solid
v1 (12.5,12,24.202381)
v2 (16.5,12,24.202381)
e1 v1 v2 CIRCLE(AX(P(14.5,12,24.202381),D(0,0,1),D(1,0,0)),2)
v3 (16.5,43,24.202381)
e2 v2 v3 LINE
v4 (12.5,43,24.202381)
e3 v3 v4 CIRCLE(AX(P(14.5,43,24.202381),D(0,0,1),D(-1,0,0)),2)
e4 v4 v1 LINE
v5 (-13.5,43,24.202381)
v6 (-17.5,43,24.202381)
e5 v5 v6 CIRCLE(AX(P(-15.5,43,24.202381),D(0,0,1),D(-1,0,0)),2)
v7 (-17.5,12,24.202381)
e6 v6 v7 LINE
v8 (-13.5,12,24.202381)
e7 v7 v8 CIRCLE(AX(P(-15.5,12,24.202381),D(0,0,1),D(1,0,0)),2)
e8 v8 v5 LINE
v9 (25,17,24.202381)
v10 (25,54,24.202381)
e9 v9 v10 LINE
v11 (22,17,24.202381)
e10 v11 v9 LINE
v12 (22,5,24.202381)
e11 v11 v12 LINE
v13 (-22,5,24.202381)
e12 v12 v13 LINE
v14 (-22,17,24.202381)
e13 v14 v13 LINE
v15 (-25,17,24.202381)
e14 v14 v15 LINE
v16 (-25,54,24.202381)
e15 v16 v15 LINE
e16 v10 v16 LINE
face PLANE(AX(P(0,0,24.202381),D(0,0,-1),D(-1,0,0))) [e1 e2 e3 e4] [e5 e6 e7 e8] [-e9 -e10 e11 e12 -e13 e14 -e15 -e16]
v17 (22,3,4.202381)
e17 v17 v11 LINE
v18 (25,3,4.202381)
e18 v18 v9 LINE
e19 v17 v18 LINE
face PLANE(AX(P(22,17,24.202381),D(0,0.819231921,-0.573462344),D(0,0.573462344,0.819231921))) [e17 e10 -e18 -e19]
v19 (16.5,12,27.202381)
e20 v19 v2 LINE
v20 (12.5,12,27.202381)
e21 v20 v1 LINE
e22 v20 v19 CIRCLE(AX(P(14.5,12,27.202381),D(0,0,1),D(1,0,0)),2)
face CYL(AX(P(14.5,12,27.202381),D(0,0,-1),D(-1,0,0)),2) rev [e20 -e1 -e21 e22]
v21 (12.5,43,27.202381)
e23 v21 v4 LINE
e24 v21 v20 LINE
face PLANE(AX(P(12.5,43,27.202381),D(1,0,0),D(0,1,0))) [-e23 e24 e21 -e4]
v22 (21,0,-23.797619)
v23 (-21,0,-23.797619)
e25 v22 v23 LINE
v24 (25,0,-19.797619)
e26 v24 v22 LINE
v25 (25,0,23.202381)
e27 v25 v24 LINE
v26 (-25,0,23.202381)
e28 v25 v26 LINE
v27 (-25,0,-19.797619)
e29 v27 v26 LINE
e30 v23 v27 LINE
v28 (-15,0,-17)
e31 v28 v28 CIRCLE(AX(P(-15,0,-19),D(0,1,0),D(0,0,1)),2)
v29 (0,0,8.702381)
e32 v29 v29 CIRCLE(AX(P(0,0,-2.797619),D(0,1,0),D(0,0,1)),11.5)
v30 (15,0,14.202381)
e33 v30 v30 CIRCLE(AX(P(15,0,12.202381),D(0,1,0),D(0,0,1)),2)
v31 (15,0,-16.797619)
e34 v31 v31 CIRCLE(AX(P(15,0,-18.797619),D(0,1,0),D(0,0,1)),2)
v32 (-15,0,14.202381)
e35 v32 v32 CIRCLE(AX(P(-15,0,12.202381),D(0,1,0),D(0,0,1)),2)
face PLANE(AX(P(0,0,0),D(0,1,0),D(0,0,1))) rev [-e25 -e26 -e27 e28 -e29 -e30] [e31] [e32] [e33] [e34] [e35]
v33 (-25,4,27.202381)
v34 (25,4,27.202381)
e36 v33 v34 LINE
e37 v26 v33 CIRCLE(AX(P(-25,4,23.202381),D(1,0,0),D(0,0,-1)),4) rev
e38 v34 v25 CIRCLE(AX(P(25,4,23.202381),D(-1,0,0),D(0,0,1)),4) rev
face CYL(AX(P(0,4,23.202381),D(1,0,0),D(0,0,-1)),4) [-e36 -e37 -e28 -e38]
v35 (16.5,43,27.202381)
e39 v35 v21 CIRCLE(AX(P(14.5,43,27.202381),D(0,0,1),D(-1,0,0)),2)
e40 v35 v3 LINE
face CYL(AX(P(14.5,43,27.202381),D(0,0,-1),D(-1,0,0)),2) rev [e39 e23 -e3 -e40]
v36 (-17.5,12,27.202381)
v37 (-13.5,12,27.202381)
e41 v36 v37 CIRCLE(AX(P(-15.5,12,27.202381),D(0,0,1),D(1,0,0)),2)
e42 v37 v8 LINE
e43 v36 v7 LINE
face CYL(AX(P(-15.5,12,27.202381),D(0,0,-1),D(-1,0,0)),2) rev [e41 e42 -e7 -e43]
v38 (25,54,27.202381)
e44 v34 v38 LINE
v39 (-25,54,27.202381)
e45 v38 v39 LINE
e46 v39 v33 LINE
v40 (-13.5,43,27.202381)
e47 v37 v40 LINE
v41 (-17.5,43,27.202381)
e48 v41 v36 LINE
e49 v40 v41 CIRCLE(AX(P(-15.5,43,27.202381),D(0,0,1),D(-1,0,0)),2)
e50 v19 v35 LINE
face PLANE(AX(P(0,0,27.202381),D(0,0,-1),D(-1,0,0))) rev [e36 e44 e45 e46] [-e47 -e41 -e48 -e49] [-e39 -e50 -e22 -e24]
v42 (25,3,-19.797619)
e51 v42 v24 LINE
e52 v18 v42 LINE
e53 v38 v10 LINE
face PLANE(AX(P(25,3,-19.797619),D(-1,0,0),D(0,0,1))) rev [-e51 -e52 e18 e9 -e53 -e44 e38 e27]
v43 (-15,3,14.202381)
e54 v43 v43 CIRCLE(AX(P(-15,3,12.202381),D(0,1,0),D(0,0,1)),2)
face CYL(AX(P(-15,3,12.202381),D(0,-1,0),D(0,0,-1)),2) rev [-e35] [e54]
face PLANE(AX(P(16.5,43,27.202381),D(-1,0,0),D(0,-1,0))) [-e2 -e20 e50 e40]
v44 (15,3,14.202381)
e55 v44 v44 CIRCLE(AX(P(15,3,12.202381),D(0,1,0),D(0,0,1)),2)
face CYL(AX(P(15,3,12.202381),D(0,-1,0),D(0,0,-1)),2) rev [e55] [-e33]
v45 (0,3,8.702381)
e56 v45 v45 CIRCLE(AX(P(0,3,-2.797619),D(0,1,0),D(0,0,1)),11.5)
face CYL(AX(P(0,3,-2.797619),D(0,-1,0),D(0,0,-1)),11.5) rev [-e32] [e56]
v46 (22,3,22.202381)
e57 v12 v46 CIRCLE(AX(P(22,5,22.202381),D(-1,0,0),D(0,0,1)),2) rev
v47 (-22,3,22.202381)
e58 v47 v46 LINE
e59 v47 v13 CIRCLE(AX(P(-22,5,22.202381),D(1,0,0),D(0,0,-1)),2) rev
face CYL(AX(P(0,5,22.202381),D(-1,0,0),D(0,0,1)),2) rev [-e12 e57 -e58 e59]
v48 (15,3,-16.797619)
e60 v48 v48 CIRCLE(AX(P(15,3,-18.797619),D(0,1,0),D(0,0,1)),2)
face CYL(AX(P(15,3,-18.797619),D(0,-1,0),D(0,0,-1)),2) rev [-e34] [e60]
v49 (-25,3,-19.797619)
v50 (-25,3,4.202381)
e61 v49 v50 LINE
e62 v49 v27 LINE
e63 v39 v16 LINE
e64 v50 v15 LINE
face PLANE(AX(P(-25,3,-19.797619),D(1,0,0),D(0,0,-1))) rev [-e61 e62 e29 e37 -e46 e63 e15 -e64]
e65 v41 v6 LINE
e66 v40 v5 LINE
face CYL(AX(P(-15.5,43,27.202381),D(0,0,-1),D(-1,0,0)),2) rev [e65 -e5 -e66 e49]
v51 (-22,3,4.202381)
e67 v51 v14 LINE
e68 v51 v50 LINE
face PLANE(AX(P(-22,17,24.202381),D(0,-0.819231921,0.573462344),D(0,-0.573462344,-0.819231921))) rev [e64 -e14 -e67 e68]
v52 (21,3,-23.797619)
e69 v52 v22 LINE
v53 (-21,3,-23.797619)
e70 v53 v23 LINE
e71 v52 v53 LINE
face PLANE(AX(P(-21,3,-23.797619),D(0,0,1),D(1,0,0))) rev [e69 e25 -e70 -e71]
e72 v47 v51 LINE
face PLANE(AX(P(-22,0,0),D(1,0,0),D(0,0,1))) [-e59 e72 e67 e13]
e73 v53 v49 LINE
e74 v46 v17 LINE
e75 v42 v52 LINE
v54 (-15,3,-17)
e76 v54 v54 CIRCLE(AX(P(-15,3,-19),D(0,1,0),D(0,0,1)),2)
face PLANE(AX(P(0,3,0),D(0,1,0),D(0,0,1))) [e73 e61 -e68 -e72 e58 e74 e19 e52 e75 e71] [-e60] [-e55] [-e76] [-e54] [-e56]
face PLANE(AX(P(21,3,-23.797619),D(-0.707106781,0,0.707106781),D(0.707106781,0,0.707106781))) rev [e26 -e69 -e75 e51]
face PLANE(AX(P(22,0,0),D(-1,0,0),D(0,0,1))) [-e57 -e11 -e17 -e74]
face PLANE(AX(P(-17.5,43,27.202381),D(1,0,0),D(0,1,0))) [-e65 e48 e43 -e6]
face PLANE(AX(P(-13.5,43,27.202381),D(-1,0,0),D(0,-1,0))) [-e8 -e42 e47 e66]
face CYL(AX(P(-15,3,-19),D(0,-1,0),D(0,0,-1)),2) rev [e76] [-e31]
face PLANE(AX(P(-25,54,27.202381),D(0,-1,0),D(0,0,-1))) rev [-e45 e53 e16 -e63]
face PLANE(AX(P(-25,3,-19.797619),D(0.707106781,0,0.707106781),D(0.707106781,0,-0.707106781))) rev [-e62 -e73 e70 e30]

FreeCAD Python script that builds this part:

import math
import FreeCAD as App
import Part
import Sketcher
Q = App.Units.Quantity


def edges_at(feature, points):
    """Names of the edges that pass closest to the given points."""
    edges = feature.Shape.Edges
    near = lambda p: min(range(len(edges)), key=lambda i: edges[i].distToShape(Part.Vertex(*p))[0])
    return sorted({f"Edge{near(p) + 1}" for p in points})


def add_polygon(sketch, points):
    """Adds a closed chain of lines whose ends are joined by coincident constraints."""
    first, n = sketch.GeometryCount, len(points)
    for a, b in zip(points, points[1:] + points[:1]):
        sketch.addGeometry(Part.LineSegment(App.Vector(*a, 0), App.Vector(*b, 0)), False)
    for i in range(n):
        sketch.addConstraint(Sketcher.Constraint("Coincident", first + i, 2, first + (i + 1) % n, 1))

doc = App.newDocument("Part")
body = doc.addObject("PartDesign::Body", "Body")

# Sketch on XZ plane
sketch1 = doc.addObject("Sketcher::SketchObject", "Sketch")
body.addObject(sketch1)
sketch1.AttachmentSupport = (doc.XZ_Plane, [""])
sketch1.MapMode = "FlatFace"
add_polygon(sketch1, [(25, -19.8), (21, -23.8), (-21, -23.8), (-25, -19.8), (-25, 24.2), (25, 24.2)])  # lines 0-5
sketch1.addGeometry(Part.Circle(App.Vector(15, 12.2, 0), App.Vector(0, 0, 1), 2), False)  # 6
sketch1.addGeometry(Part.Circle(App.Vector(-15, 12.2, 0), App.Vector(0, 0, 1), 2), False)  # 7
sketch1.addGeometry(Part.Circle(App.Vector(0, -2.8, 0), App.Vector(0, 0, 1), 11.5), False)  # 8
sketch1.addGeometry(Part.Circle(App.Vector(15, -18.8, 0), App.Vector(0, 0, 1), 2), False)  # 9
sketch1.addGeometry(Part.Circle(App.Vector(-15, -19, 0), App.Vector(0, 0, 1), 2), False)  # 10
sketch1.addConstraint([
    Sketcher.Constraint("Horizontal", 1),
    Sketcher.Constraint("Vertical", 3),
    Sketcher.Constraint("Horizontal", 4),
    Sketcher.Constraint("Vertical", 5),
    Sketcher.Constraint("Equal", 6, 7),
    Sketcher.Constraint("Equal", 7, 9),
    Sketcher.Constraint("Equal", 9, 10),
    Sketcher.Constraint("Symmetric", 6, 3, 7, 3, -2),
    Sketcher.Constraint("Symmetric", 2, 2, 5, 2, -2),
    Sketcher.Constraint("PointOnObject", 8, 3, -2),
    Sketcher.Constraint("Perpendicular", 0, 2),
    Sketcher.Constraint("Vertical", 6, 3, 9, 3),
    Sketcher.Constraint("Vertical", 7, 3, 10, 3),
    Sketcher.Constraint("Equal", 0, 2),
    Sketcher.Constraint("Diameter", 6, Q("4 mm")),
    Sketcher.Constraint("Diameter", 8, Q("23 mm")),
    Sketcher.Constraint("DistanceX", 1, 2, 1, 1, Q("42 mm")),
    Sketcher.Constraint("DistanceX", 4, 1, 4, 2, Q("50 mm")),
    Sketcher.Constraint("DistanceY", 3, 1, 3, 2, Q("44 mm")),
    Sketcher.Constraint("DistanceX", -1, 1, 6, 3, Q("15 mm")),
    Sketcher.Constraint("DistanceY", 10, 3, -1, 1, Q("19 mm")),
    Sketcher.Constraint("DistanceY", 8, 3, 6, 3, Q("15 mm")),
    Sketcher.Constraint("DistanceY", 9, 3, 8, 3, Q("16 mm")),
    Sketcher.Constraint("DistanceY", 0, 2, 9, 3, Q("5 mm")),
    Sketcher.Constraint("DistanceY", -1, 1, 6, 3, Q("12.202381 mm")),
])
pad1 = doc.addObject("PartDesign::Pad", "Pad")
body.addObject(pad1)
pad1.Profile = sketch1
pad1.Length = 3
pad1.Reversed = True

# Sketch on XY plane
sketch2 = doc.addObject("Sketcher::SketchObject", "Sketch001")
body.addObject(sketch2)
sketch2.AttachmentSupport = (doc.XY_Plane, [""])
sketch2.MapMode = "FlatFace"
sketch2.AttachmentOffset = App.Placement(App.Vector(0, 0, 24.202381), App.Rotation())
add_polygon(sketch2, [(-25, 54), (-25, 0), (25, 0), (25, 54)])  # lines 0-3
sketch2.addGeometry(Part.LineSegment(App.Vector(-17.5, 12, 0), App.Vector(-17.5, 43, 0)), False)  # 4
sketch2.addGeometry(Part.ArcOfCircle(Part.Circle(App.Vector(-15.5, 43, 0), App.Vector(0, 0, 1), 2), math.radians(0), math.radians(180)), False)  # 5
sketch2.addGeometry(Part.LineSegment(App.Vector(-13.5, 43, 0), App.Vector(-13.5, 12, 0)), False)  # 6
sketch2.addGeometry(Part.ArcOfCircle(Part.Circle(App.Vector(-15.5, 12, 0), App.Vector(0, 0, 1), 2), math.radians(180), math.radians(360)), False)  # 7
sketch2.addGeometry(Part.LineSegment(App.Vector(12.5, 12, 0), App.Vector(12.5, 43, 0)), False)  # 8
sketch2.addGeometry(Part.ArcOfCircle(Part.Circle(App.Vector(14.5, 43, 0), App.Vector(0, 0, 1), 2), math.radians(0), math.radians(180)), False)  # 9
sketch2.addGeometry(Part.LineSegment(App.Vector(16.5, 43, 0), App.Vector(16.5, 12, 0)), False)  # 10
sketch2.addGeometry(Part.ArcOfCircle(Part.Circle(App.Vector(14.5, 12, 0), App.Vector(0, 0, 1), 2), math.radians(180), math.radians(360)), False)  # 11
sketch2.addConstraint([
    Sketcher.Constraint("Tangent", 4, 2, 5, 2),
    Sketcher.Constraint("Tangent", 5, 1, 6, 1),
    Sketcher.Constraint("Tangent", 6, 2, 7, 2),
    Sketcher.Constraint("Tangent", 7, 1, 4, 1),
    Sketcher.Constraint("Tangent", 8, 2, 9, 2),
    Sketcher.Constraint("Tangent", 9, 1, 10, 1),
    Sketcher.Constraint("Tangent", 10, 2, 11, 2),
    Sketcher.Constraint("Tangent", 11, 1, 8, 1),
    Sketcher.Constraint("Vertical", 0),
    Sketcher.Constraint("Horizontal", 1),
    Sketcher.Constraint("Vertical", 2),
    Sketcher.Constraint("Horizontal", 3),
    Sketcher.Constraint("Vertical", 4),
    Sketcher.Constraint("Vertical", 6),
    Sketcher.Constraint("Vertical", 8),
    Sketcher.Constraint("Vertical", 10),
    Sketcher.Constraint("Equal", 7, 9),
    Sketcher.Constraint("Symmetric", 0, 2, 1, 2, -1, 1),
    Sketcher.Constraint("Horizontal", 5, 3, 9, 3),
    Sketcher.Constraint("Horizontal", 7, 3, 11, 3),
    Sketcher.Constraint("Radius", 5, Q("2 mm")),
    Sketcher.Constraint("DistanceX", 1, 1, 1, 2, Q("50 mm")),
    Sketcher.Constraint("DistanceY", 0, 2, 0, 1, Q("54 mm")),
    Sketcher.Constraint("DistanceY", 4, 1, 4, 2, Q("31 mm")),
    Sketcher.Constraint("DistanceY", -1, 1, 5, 3, Q("43 mm")),
    Sketcher.Constraint("DistanceX", 5, 3, 9, 3, Q("30 mm")),
    Sketcher.Constraint("DistanceX", 5, 3, -1, 1, Q("15.5 mm")),
])
pad2 = doc.addObject("PartDesign::Pad", "Pad001")
body.addObject(pad2)
pad2.Profile = sketch2
pad2.Length = 3
doc.recompute()

fillet = doc.addObject("PartDesign::Fillet", "Fillet")
body.addObject(fillet)
fillet.Base = (pad2, edges_at(pad2, [(0, 0, 27.202)]))
fillet.Radius = 4
doc.recompute()

fillet2 = doc.addObject("PartDesign::Fillet", "Fillet001")
body.addObject(fillet2)
fillet2.Base = (fillet, edges_at(fillet, [(0, 3, 24.202)]))
fillet2.Radius = 2

# Sketch on YZ plane
sketch3 = doc.addObject("Sketcher::SketchObject", "Sketch002")
body.addObject(sketch3)
sketch3.AttachmentSupport = (doc.YZ_Plane, [""])
sketch3.MapMode = "FlatFace"
sketch3.AttachmentOffset = App.Placement(App.Vector(0, 0, 25), App.Rotation())
add_polygon(sketch3, [(17, 24), (3, 24), (3, 4)])  # lines 0-2
sketch3.addConstraint([
    Sketcher.Constraint("Horizontal", 0),
    Sketcher.Constraint("Vertical", 1),
    Sketcher.Constraint("DistanceX", 0, 2, 0, 1, Q("14 mm")),
    Sketcher.Constraint("DistanceY", 1, 2, 1, 1, Q("20 mm")),
    Sketcher.Constraint("DistanceX", -1, 1, 0, 2, Q("3 mm")),
    Sketcher.Constraint("DistanceY", -1, 1, 0, 2, Q("24.202381 mm")),
])
pad3 = doc.addObject("PartDesign::Pad", "Pad002")
body.addObject(pad3)
pad3.Profile = sketch3
pad3.Length = 3
pad3.Reversed = True
doc.recompute()

mirrored = doc.addObject("PartDesign::Mirrored", "Mirrored")
body.addObject(mirrored)
mirrored.Originals = [pad3]
mirrored.MirrorPlane = (doc.YZ_Plane, [""])
body.Tip = mirrored

doc.recompute()
